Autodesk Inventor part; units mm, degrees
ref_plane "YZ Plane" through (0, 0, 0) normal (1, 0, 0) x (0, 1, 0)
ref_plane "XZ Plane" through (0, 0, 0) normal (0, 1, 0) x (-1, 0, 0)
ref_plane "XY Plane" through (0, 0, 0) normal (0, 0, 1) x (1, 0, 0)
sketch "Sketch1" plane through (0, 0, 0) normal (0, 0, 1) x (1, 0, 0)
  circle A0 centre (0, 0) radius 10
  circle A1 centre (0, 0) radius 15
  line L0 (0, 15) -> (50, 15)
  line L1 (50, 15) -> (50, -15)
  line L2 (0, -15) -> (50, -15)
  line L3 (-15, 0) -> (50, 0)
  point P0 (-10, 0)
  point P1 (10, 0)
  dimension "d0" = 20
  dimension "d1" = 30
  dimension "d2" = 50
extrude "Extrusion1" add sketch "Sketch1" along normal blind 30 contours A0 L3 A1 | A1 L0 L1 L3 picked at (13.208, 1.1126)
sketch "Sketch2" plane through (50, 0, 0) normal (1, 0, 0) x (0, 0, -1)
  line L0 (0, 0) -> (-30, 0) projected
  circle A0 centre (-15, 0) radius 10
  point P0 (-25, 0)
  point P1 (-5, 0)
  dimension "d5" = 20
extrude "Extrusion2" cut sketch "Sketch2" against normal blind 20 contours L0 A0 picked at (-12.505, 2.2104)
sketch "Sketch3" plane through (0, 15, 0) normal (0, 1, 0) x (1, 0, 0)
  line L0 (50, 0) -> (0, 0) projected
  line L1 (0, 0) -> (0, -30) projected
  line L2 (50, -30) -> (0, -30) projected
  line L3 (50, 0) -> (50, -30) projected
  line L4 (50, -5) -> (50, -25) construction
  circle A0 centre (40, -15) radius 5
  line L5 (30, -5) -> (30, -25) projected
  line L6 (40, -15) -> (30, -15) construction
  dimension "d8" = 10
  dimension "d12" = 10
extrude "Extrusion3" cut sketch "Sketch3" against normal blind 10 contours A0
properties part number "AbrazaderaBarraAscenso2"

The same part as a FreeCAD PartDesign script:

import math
import FreeCAD as App
import Part
import Sketcher

V = App.Vector

doc = App.newDocument("Part")
body = doc.addObject("PartDesign::Body", "Body")

# Sketch on XY plane
sketch1 = body.newObject("Sketcher::SketchObject", "Sketch")
sketch1.AttachmentSupport = (doc.getObject("XY_Plane"), [""])
sketch1.MapMode = "FlatFace"
sketch1.addGeometry([
    Part.ArcOfCircle(Part.Circle(V(0, 0, 0), V(0, 0, 1), 10), math.radians(0), math.radians(180)),  # 0
    Part.LineSegment(V(10, 0, 0), V(50, 0, 0)),  # 1
    Part.LineSegment(V(50, 0, 0), V(50, 15, 0)),  # 2
    Part.LineSegment(V(50, 15, 0), V(0, 15, 0)),  # 3
    Part.ArcOfCircle(Part.Circle(V(0, 0, 0), V(0, 0, 1), 15), math.radians(90), math.radians(180)),  # 4
    Part.LineSegment(V(-15, 0, 0), V(-10, 0, 0)),  # 5
], False)
sketch1.addConstraint([
    Sketcher.Constraint("Coincident", 0, 1, 1, 1),
    Sketcher.Constraint("Coincident", 1, 2, 2, 1),
    Sketcher.Constraint("Coincident", 2, 2, 3, 1),
    Sketcher.Constraint("Tangent", 3, 2, 4, 1),
    Sketcher.Constraint("Coincident", 4, 2, 5, 1),
    Sketcher.Constraint("Coincident", 5, 2, 0, 2),
    Sketcher.Constraint("Horizontal", 1),
    Sketcher.Constraint("Vertical", 2),
    Sketcher.Constraint("Horizontal", 3),
    Sketcher.Constraint("Horizontal", 5),
    Sketcher.Constraint("Coincident", 0, 3, -1, 1),
    Sketcher.Constraint("Coincident", 4, 3, -1, 1),
    Sketcher.Constraint("PointOnObject", 0, 1, -1),
    Sketcher.Constraint("PointOnObject", 4, 2, -1),
    Sketcher.Constraint("Radius", 0, 10.0),
    Sketcher.Constraint("Radius", 4, 15.0),
    Sketcher.Constraint("DistanceX", 3, 2, 3, 1, 50.0),
])
pad1 = body.newObject("PartDesign::Pad", "Pad")
pad1.Profile = sketch1
pad1.Length = 30

# Sketch on YZ plane
sketch2 = body.newObject("Sketcher::SketchObject", "Sketch001")
sketch2.AttachmentSupport = (doc.getObject("YZ_Plane"), [""])
sketch2.MapMode = "FlatFace"
sketch2.AttachmentOffset = App.Placement(V(0, 0, 50), App.Rotation())
sketch2.addGeometry([
    Part.LineSegment(V(0, 25, 0), V(0, 5, 0)),
    Part.ArcOfCircle(Part.Circle(V(0, 15, 0), V(0, 0, 1), 10), math.radians(-90), math.radians(90)),
], False)
sketch2.addConstraint([
    Sketcher.Constraint("Coincident", 0, 1, 1, 2),
    Sketcher.Constraint("Coincident", 1, 1, 0, 2),
    Sketcher.Constraint("Vertical", 0),
    Sketcher.Constraint("PointOnObject", 1, 3, -2),
    Sketcher.Constraint("PointOnObject", 0, 1, -2),
    Sketcher.Constraint("Radius", 1, 10.0),
    Sketcher.Constraint("DistanceY", -1, 1, 1, 3, 15.0),
])
pocket1 = body.newObject("PartDesign::Pocket", "Pocket")
pocket1.Profile = sketch2
pocket1.Length = 20

# Sketch on XZ plane
sketch3 = body.newObject("Sketcher::SketchObject", "Sketch002")
sketch3.AttachmentSupport = (doc.getObject("XZ_Plane"), [""])
sketch3.MapMode = "FlatFace"
sketch3.AttachmentOffset = App.Placement(V(0, 0, -15), App.Rotation())
sketch3.addGeometry(Part.Circle(V(40, 15, 0), V(0, 0, 1), 5), False)
sketch3.addConstraint([
    Sketcher.Constraint("Diameter", 0, 10.0),
    Sketcher.Constraint("DistanceX", -1, 1, 0, 3, 40.0),
    Sketcher.Constraint("DistanceY", -1, 1, 0, 3, 15.0),
])
pocket2 = body.newObject("PartDesign::Pocket", "Pocket001")
pocket2.Profile = sketch3
pocket2.Length = 10
pocket2.Reversed = True

doc.recompute()
